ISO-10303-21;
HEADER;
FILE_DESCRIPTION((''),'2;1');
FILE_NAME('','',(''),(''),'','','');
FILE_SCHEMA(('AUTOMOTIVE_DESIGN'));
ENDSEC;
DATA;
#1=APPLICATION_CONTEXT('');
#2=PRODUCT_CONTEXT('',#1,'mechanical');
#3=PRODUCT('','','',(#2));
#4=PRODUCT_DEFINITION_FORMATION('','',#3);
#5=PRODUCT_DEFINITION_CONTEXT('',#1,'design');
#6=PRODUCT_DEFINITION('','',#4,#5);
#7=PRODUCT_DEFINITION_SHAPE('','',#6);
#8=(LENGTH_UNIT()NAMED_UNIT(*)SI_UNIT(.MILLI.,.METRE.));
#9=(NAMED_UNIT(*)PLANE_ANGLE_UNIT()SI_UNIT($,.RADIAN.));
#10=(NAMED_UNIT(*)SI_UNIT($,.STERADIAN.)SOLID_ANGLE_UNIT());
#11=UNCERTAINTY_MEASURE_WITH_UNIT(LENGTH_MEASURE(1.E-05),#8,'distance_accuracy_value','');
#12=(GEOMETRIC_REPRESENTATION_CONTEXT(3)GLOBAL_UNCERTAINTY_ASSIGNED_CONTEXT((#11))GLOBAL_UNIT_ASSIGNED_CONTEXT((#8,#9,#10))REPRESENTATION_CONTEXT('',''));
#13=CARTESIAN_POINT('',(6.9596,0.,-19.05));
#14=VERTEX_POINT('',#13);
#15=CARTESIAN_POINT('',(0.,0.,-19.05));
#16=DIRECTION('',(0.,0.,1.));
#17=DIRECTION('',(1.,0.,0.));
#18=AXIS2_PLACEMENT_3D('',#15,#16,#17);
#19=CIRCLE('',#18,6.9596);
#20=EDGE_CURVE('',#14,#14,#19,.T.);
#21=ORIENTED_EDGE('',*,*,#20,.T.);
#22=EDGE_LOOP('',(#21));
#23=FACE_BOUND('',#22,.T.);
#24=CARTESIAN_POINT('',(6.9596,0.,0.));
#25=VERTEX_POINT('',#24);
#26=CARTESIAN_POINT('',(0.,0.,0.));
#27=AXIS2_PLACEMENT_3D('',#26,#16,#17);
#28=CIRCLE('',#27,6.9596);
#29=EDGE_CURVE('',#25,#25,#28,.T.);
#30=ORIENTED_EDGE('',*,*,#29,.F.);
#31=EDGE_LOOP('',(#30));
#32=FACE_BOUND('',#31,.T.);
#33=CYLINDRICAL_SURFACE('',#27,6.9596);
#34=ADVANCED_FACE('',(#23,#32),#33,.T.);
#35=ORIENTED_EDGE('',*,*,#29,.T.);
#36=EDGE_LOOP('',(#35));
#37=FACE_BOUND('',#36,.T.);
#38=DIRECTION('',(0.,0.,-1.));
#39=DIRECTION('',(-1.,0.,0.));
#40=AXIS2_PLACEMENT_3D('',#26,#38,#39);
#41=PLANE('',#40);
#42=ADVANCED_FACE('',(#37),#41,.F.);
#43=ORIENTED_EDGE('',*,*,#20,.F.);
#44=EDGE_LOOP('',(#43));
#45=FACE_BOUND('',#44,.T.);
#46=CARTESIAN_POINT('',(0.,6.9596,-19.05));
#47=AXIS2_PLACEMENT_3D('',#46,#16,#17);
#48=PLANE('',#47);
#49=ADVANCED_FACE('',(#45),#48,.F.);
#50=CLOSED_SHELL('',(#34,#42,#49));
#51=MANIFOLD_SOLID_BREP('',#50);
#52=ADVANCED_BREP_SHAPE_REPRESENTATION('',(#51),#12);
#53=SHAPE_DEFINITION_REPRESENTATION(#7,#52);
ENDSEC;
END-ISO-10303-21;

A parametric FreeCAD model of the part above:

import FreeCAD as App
import Part
import Sketcher
from FreeCAD import Vector
Q = App.Units.Quantity

doc = App.newDocument("Part")
params = doc.addObject("Spreadsheet::Sheet", "Params")
for row, (alias, value) in enumerate([
    ("sketch1_height", "0.75 in"),
    ("sketch1_width", "0.274 in"),
    ("revolution_angle", "360 deg"),
], start=1):
    params.set(f"A{row}", alias)
    params.set(f"B{row}", "=" + value)
    params.setAlias(f"B{row}", alias)

body = doc.addObject("PartDesign::Body", "Body")

sketch1 = doc.addObject("Sketcher::SketchObject", "Sketch")
body.addObject(sketch1)
sketch1.AttachmentSupport = (doc.YZ_Plane, [""])
sketch1.MapMode = "FlatFace"
sketch1.addGeometry([
    Part.LineSegment(Vector(7, 0, 0), Vector(0, 0, 0)),
    Part.LineSegment(Vector(0, 0, 0), Vector(0, -19, 0)),
    Part.LineSegment(Vector(0, -19, 0), Vector(7, -19, 0)),
    Part.LineSegment(Vector(7, -19, 0), Vector(7, 0, 0)),
], False)
sketch1.addConstraint([
    Sketcher.Constraint("Coincident", 0, 2, 1, 1),
    Sketcher.Constraint("Coincident", 1, 2, 2, 1),
    Sketcher.Constraint("Coincident", 2, 2, 3, 1),
    Sketcher.Constraint("Coincident", 3, 2, 0, 1),
    Sketcher.Constraint("Horizontal", 0),
    Sketcher.Constraint("Vertical", 1),
    Sketcher.Constraint("Horizontal", 2),
    Sketcher.Constraint("Vertical", 3),
    Sketcher.Constraint("Coincident", 0, 2, -1, 1),
    Sketcher.Constraint("DistanceY", 1, 2, 1, 1, Q("0.75 in")),
    Sketcher.Constraint("DistanceX", 0, 2, 0, 1, Q("0.274 in")),
])
sketch1.setExpression("Constraints[9]", "Params.sketch1_height")
sketch1.setExpression("Constraints[10]", "Params.sketch1_width")
revolution = doc.addObject("PartDesign::Revolution", "Revolution")
body.addObject(revolution)
revolution.Profile = sketch1
revolution.ReferenceAxis = (sketch1, ["V_Axis"])
revolution.setExpression("Angle", "Params.revolution_angle")

doc.recompute()
